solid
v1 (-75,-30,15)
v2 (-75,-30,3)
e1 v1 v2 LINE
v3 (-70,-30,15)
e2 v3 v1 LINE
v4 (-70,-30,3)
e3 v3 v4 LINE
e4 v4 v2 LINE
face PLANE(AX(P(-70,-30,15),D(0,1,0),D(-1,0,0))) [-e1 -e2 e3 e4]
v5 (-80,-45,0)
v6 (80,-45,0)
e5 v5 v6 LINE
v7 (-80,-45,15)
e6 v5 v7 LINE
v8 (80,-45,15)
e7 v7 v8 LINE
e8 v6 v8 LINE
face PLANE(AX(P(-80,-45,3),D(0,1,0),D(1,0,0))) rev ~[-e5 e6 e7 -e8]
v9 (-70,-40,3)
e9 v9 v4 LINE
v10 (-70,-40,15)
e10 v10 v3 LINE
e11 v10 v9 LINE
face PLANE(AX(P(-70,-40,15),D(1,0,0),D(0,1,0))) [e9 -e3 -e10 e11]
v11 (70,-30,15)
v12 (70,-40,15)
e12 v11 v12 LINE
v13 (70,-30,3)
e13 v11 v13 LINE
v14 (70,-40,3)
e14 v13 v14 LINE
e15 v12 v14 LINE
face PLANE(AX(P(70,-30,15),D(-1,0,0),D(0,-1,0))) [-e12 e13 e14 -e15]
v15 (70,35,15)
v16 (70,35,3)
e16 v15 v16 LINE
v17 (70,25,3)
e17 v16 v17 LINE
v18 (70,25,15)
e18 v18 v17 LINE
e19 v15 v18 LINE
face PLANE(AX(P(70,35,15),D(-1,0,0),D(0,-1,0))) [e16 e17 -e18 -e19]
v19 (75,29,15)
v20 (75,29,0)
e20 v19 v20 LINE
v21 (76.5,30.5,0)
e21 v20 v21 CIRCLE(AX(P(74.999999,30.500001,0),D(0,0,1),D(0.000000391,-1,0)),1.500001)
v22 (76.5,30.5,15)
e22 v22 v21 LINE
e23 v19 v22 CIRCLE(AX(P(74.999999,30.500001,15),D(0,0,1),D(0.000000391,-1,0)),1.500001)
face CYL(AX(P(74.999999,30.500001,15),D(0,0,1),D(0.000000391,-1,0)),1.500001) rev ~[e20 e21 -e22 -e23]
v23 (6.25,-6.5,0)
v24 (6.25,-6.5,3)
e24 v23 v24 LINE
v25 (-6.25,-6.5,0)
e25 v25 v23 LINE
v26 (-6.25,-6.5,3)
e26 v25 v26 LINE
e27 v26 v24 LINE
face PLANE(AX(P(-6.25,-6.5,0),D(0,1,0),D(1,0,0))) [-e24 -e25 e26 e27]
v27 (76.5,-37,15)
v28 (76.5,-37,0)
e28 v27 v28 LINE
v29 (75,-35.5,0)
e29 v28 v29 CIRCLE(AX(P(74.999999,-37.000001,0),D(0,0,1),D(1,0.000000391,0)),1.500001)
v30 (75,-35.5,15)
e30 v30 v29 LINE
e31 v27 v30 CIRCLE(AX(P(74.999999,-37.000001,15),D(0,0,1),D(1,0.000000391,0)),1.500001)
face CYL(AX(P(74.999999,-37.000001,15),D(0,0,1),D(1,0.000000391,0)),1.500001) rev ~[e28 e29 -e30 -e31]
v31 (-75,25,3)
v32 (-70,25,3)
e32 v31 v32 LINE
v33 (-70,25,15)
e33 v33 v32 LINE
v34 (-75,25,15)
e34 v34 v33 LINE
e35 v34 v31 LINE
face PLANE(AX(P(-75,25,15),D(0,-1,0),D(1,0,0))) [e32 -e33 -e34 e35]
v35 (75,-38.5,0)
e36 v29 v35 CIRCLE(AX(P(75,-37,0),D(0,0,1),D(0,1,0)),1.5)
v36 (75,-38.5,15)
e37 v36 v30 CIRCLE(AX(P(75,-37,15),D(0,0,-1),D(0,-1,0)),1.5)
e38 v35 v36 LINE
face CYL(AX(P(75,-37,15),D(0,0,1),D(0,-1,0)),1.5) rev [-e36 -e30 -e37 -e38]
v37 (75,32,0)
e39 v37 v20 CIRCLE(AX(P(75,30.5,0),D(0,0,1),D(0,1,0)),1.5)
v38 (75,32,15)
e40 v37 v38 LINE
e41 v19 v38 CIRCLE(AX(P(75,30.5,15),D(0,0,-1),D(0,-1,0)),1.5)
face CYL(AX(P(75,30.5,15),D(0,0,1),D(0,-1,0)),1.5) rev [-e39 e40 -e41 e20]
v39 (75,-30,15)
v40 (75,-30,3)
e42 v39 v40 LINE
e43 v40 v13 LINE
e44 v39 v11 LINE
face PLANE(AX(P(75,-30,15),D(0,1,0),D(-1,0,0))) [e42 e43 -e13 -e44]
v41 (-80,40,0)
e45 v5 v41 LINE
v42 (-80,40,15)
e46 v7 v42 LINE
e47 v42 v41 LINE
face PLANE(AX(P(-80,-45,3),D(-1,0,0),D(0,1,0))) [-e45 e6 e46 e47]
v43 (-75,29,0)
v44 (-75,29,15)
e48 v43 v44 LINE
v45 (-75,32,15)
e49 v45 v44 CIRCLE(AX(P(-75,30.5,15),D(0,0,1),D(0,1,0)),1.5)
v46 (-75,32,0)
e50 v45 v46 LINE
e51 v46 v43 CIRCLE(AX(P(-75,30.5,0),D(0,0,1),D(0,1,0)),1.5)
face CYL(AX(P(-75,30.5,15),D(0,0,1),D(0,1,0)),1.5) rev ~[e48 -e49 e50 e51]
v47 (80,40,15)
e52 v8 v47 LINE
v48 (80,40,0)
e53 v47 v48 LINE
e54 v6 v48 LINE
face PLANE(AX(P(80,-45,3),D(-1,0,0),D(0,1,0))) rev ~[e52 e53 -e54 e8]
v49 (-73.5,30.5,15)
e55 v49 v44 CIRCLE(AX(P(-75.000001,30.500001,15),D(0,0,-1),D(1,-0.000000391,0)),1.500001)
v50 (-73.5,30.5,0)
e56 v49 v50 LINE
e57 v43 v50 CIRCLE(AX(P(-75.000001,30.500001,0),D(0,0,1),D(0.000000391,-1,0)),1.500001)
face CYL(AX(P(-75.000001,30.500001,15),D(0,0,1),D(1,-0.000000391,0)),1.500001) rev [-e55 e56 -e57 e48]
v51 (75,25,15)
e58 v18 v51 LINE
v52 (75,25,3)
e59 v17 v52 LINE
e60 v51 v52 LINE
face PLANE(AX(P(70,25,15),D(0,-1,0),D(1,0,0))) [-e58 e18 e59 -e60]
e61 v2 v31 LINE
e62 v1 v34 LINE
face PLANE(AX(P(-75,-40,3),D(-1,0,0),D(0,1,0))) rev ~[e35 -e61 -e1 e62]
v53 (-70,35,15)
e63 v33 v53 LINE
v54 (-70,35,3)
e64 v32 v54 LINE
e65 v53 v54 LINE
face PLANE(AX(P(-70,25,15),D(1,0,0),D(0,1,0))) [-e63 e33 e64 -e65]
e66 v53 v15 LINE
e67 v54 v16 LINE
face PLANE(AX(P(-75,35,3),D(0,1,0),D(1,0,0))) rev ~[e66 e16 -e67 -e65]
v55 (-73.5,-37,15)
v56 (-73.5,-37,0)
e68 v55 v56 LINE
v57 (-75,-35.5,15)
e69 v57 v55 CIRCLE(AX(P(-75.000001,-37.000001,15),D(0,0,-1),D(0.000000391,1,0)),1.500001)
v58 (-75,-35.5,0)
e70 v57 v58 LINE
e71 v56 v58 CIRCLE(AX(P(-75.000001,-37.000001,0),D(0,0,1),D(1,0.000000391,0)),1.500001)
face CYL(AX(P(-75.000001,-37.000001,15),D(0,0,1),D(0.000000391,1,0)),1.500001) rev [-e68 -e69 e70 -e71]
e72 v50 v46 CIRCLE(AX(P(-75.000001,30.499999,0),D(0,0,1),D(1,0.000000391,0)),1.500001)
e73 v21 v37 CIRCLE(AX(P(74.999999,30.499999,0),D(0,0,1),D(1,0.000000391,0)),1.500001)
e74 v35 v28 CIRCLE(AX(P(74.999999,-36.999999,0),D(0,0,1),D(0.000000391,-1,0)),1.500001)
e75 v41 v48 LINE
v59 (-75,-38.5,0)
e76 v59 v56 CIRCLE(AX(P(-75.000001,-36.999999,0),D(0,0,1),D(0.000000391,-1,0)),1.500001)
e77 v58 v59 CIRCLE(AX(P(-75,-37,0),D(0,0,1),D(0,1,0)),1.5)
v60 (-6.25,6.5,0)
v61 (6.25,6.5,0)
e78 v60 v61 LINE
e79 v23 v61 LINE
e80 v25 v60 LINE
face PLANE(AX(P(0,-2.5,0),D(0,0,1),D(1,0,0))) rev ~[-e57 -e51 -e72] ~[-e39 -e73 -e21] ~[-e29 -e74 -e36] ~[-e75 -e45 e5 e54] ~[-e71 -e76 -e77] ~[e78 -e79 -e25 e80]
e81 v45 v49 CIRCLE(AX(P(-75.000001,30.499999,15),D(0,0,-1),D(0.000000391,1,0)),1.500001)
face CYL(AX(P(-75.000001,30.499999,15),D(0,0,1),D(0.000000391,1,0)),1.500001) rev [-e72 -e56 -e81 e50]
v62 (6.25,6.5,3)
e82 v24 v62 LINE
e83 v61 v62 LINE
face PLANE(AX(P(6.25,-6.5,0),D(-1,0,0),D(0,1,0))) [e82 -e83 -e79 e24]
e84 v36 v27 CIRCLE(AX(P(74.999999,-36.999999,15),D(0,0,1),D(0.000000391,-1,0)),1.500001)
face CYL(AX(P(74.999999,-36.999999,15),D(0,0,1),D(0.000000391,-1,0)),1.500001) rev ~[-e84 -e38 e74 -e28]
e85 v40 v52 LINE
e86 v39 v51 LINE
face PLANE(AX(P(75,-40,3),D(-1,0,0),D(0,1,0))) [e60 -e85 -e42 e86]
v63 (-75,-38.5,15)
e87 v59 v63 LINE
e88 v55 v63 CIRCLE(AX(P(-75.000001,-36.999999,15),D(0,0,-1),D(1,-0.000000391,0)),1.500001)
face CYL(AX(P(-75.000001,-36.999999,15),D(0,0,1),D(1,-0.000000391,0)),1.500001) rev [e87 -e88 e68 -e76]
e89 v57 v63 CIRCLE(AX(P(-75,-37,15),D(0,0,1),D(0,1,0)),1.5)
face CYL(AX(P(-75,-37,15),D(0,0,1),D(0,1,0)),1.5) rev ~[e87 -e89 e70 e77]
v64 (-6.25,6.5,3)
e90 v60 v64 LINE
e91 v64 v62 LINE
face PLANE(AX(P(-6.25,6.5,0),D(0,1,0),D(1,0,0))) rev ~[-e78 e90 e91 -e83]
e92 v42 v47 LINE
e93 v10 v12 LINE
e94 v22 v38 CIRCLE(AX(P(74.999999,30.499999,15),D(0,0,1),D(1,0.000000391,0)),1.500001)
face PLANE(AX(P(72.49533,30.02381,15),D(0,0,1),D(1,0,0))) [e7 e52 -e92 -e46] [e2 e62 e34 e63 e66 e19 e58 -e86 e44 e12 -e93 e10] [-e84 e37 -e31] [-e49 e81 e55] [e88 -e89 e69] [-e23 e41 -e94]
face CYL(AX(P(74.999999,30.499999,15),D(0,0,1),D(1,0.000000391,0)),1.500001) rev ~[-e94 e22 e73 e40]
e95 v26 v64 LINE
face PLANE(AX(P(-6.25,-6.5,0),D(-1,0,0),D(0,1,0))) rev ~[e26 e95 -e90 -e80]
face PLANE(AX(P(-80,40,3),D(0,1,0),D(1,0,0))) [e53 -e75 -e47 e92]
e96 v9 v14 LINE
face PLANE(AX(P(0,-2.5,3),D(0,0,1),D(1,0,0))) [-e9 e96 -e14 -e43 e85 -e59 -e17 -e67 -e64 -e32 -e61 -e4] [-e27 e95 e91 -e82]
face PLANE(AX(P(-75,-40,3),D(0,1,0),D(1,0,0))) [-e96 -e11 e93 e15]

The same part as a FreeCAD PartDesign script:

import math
import FreeCAD as App
import Part
import Sketcher
from FreeCAD import Vector


def add_polygon(sketch, points):
    """Adds a closed chain of lines whose ends are joined by coincident constraints."""
    first, n = sketch.GeometryCount, len(points)
    for a, b in zip(points, points[1:] + points[:1]):
        sketch.addGeometry(Part.LineSegment(App.Vector(*a, 0), App.Vector(*b, 0)), False)
    for i in range(n):
        sketch.addConstraint(Sketcher.Constraint("Coincident", first + i, 2, first + (i + 1) % n, 1))

doc = App.newDocument("Part")
body = doc.addObject("PartDesign::Body", "Body")

# Sketch on XY plane
sketch1 = body.newObject("Sketcher::SketchObject", "Sketch")
sketch1.AttachmentSupport = (doc.getObject("XY_Plane"), [""])
sketch1.MapMode = "FlatFace"
add_polygon(sketch1, [(-80, 40), (-80, -45), (80, -45), (80, 40)])  # lines 0-3
add_polygon(sketch1, [(6, -6), (-6, -6), (-6, 6), (6, 6)])  # lines 4-7
sketch1.addConstraint([
    Sketcher.Constraint("Vertical", 0),
    Sketcher.Constraint("Horizontal", 1),
    Sketcher.Constraint("Vertical", 2),
    Sketcher.Constraint("Horizontal", 3),
    Sketcher.Constraint("Horizontal", 4),
    Sketcher.Constraint("Vertical", 5),
    Sketcher.Constraint("Horizontal", 6),
    Sketcher.Constraint("Vertical", 7),
    Sketcher.Constraint("Symmetric", 4, 2, 6, 2, -1, 1),
    Sketcher.Constraint("DistanceX", 1, 1, 1, 2, 160.0),
    Sketcher.Constraint("DistanceY", 0, 2, 0, 1, 85.0),
    Sketcher.Constraint("DistanceY", 5, 1, 5, 2, 13.0),
    Sketcher.Constraint("DistanceX", 4, 2, 4, 1, 12.5),
    Sketcher.Constraint("DistanceX", 0, 2, -1, 1, 80.0),
    Sketcher.Constraint("DistanceY", 0, 2, -1, 1, 45.0),
])
pad1 = body.newObject("PartDesign::Pad", "Pad")
pad1.Profile = sketch1
pad1.Length = 3

# Sketch on XY plane
sketch2 = body.newObject("Sketcher::SketchObject", "Sketch001")
sketch2.AttachmentSupport = (doc.getObject("XY_Plane"), [""])
sketch2.MapMode = "FlatFace"
sketch2.AttachmentOffset = App.Placement(Vector(0, 0, 3), App.Rotation())
add_polygon(sketch2, [(-80, 40), (-80, -45), (80, -45), (80, 40)])  # lines 0-3
add_polygon(sketch2, [(75, -40), (-75, -40), (-75, 35), (75, 35)])  # lines 4-7
sketch2.addConstraint([
    Sketcher.Constraint("Vertical", 0),
    Sketcher.Constraint("Horizontal", 1),
    Sketcher.Constraint("Vertical", 2),
    Sketcher.Constraint("Horizontal", 3),
    Sketcher.Constraint("Horizontal", 4),
    Sketcher.Constraint("Vertical", 5),
    Sketcher.Constraint("Horizontal", 6),
    Sketcher.Constraint("Vertical", 7),
    Sketcher.Constraint("DistanceX", 1, 1, 1, 2, 160.0),
    Sketcher.Constraint("DistanceX", 4, 2, 4, 1, 150.0),
    Sketcher.Constraint("DistanceY", 0, 2, 0, 1, 85.0),
    Sketcher.Constraint("DistanceY", 5, 1, 5, 2, 75.0),
    Sketcher.Constraint("DistanceX", 0, 2, -1, 1, 80.0),
    Sketcher.Constraint("DistanceY", 0, 2, -1, 1, 45.0),
    Sketcher.Constraint("DistanceX", 4, 2, -1, 1, 75.0),
    Sketcher.Constraint("DistanceY", 4, 2, -1, 1, 40.0),
])
pad2 = body.newObject("PartDesign::Pad", "Pad001")
pad2.Profile = sketch2
pad2.Length = 12

# Sketch on XY plane
sketch3 = body.newObject("Sketcher::SketchObject", "Sketch002")
sketch3.AttachmentSupport = (doc.getObject("XY_Plane"), [""])
sketch3.MapMode = "FlatFace"
sketch3.AttachmentOffset = App.Placement(Vector(0, 0, 15), App.Rotation())
sketch3.addGeometry([
    Part.ArcOfCircle(Part.Circle(Vector(75, 30.5, 0), Vector(0, 0, 1), 1.5), math.radians(90), math.radians(270)),  # 0
    Part.LineSegment(Vector(75, 32, 0), Vector(75, 35, 0)),  # 1
    Part.LineSegment(Vector(75, 35, 0), Vector(70, 35, 0)),  # 2
    Part.LineSegment(Vector(70, 35, 0), Vector(70, 25, 0)),  # 3
    Part.LineSegment(Vector(70, 25, 0), Vector(75, 25, 0)),  # 4
    Part.LineSegment(Vector(75, 25, 0), Vector(75, 29, 0)),  # 5
    Part.ArcOfCircle(Part.Circle(Vector(-75, 30.5, 0), Vector(0, 0, 1), 1.5), math.radians(0), math.radians(90)),  # 6
    Part.ArcOfCircle(Part.Circle(Vector(-75, 30.5, 0), Vector(0, 0, 1), 1.5), math.radians(-90), math.radians(0)),  # 7
    Part.LineSegment(Vector(-75, 29, 0), Vector(-75, 25, 0)),  # 8
    Part.LineSegment(Vector(-75, 25, 0), Vector(-70, 25, 0)),  # 9
    Part.LineSegment(Vector(-70, 25, 0), Vector(-70, 35, 0)),  # 10
    Part.LineSegment(Vector(-70, 35, 0), Vector(-75, 35, 0)),  # 11
    Part.LineSegment(Vector(-75, 35, 0), Vector(-75, 32, 0)),  # 12
    Part.ArcOfCircle(Part.Circle(Vector(-75, -37, 0), Vector(0, 0, 1), 1.5), math.radians(0), math.radians(90)),  # 13
    Part.ArcOfCircle(Part.Circle(Vector(-75, -37, 0), Vector(0, 0, 1), 1.5), math.radians(-90), math.radians(0)),  # 14
    Part.LineSegment(Vector(-75, -38.5, 0), Vector(-75, -40, 0)),  # 15
    Part.LineSegment(Vector(-75, -40, 0), Vector(-70, -40, 0)),  # 16
    Part.LineSegment(Vector(-70, -40, 0), Vector(-70, -30, 0)),  # 17
    Part.LineSegment(Vector(-70, -30, 0), Vector(-75, -30, 0)),  # 18
    Part.LineSegment(Vector(-75, -30, 0), Vector(-75, -35.5, 0)),  # 19
    Part.ArcOfCircle(Part.Circle(Vector(75, -37, 0), Vector(0, 0, 1), 1.5), math.radians(90), math.radians(270)),  # 20
    Part.LineSegment(Vector(75, -35.5, 0), Vector(75, -30, 0)),  # 21
    Part.LineSegment(Vector(75, -30, 0), Vector(70, -30, 0)),  # 22
    Part.LineSegment(Vector(70, -30, 0), Vector(70, -40, 0)),  # 23
    Part.LineSegment(Vector(70, -40, 0), Vector(75, -40, 0)),  # 24
    Part.LineSegment(Vector(75, -40, 0), Vector(75, -38.5, 0)),  # 25
], False)
sketch3.addConstraint([
    Sketcher.Constraint("Coincident", 0, 1, 1, 1),
    Sketcher.Constraint("Coincident", 1, 2, 2, 1),
    Sketcher.Constraint("Coincident", 2, 2, 3, 1),
    Sketcher.Constraint("Coincident", 3, 2, 4, 1),
    Sketcher.Constraint("Coincident", 4, 2, 5, 1),
    Sketcher.Constraint("Coincident", 5, 2, 0, 2),
    Sketcher.Constraint("Tangent", 6, 1, 7, 2),
    Sketcher.Constraint("Coincident", 7, 1, 8, 1),
    Sketcher.Constraint("Coincident", 8, 2, 9, 1),
    Sketcher.Constraint("Coincident", 9, 2, 10, 1),
    Sketcher.Constraint("Coincident", 10, 2, 11, 1),
    Sketcher.Constraint("Coincident", 11, 2, 12, 1),
    Sketcher.Constraint("Coincident", 12, 2, 6, 2),
    Sketcher.Constraint("Tangent", 13, 1, 14, 2),
    Sketcher.Constraint("Coincident", 14, 1, 15, 1),
    Sketcher.Constraint("Coincident", 15, 2, 16, 1),
    Sketcher.Constraint("Coincident", 16, 2, 17, 1),
    Sketcher.Constraint("Coincident", 17, 2, 18, 1),
    Sketcher.Constraint("Coincident", 18, 2, 19, 1),
    Sketcher.Constraint("Coincident", 19, 2, 13, 2),
    Sketcher.Constraint("Coincident", 20, 1, 21, 1),
    Sketcher.Constraint("Coincident", 21, 2, 22, 1),
    Sketcher.Constraint("Coincident", 22, 2, 23, 1),
    Sketcher.Constraint("Coincident", 23, 2, 24, 1),
    Sketcher.Constraint("Coincident", 24, 2, 25, 1),
    Sketcher.Constraint("Coincident", 25, 2, 20, 2),
    Sketcher.Constraint("Vertical", 1),
    Sketcher.Constraint("Horizontal", 2),
    Sketcher.Constraint("Vertical", 3),
    Sketcher.Constraint("Horizontal", 4),
    Sketcher.Constraint("Vertical", 5),
    Sketcher.Constraint("Vertical", 8),
    Sketcher.Constraint("Horizontal", 9),
    Sketcher.Constraint("Vertical", 10),
    Sketcher.Constraint("Horizontal", 11),
    Sketcher.Constraint("Vertical", 12),
    Sketcher.Constraint("Vertical", 15),
    Sketcher.Constraint("Horizontal", 16),
    Sketcher.Constraint("Vertical", 17),
    Sketcher.Constraint("Horizontal", 18),
    Sketcher.Constraint("Vertical", 19),
    Sketcher.Constraint("Vertical", 21),
    Sketcher.Constraint("Horizontal", 22),
    Sketcher.Constraint("Vertical", 23),
    Sketcher.Constraint("Horizontal", 24),
    Sketcher.Constraint("Vertical", 25),
    Sketcher.Constraint("Equal", 0, 6),
    Sketcher.Constraint("Equal", 6, 7),
    Sketcher.Constraint("Equal", 7, 13),
    Sketcher.Constraint("Equal", 13, 14),
    Sketcher.Constraint("Equal", 14, 20),
    Sketcher.Constraint("Symmetric", 0, 3, 6, 3, -2),
    Sketcher.Constraint("Symmetric", 13, 3, 20, 3, -2),
    Sketcher.Constraint("Symmetric", 4, 2, 8, 2, -2),
    Sketcher.Constraint("Symmetric", 2, 2, 10, 2, -2),
    Sketcher.Constraint("Symmetric", 18, 2, 21, 2, -2),
    Sketcher.Constraint("Symmetric", 16, 2, 23, 2, -2),
    Sketcher.Constraint("Horizontal", 7, 3, 6, 1),
    Sketcher.Constraint("Horizontal", 20, 3, 13, 1),
    Sketcher.Constraint("Vertical", 7, 3, 13, 3),
    Sketcher.Constraint("Vertical", 20, 3, 0, 1),
    Sketcher.Constraint("Vertical", 1, 2, 4, 2),
    Sketcher.Constraint("Vertical", 8, 2, 11, 2),
    Sketcher.Constraint("Vertical", 12, 2, 14, 1),
    Sketcher.Constraint("Vertical", 10, 2, 16, 2),
    Sketcher.Constraint("Vertical", 15, 2, 18, 2),
    Sketcher.Constraint("Vertical", 21, 2, 24, 2),
    Sketcher.Constraint("Equal", 10, 17),
    Sketcher.Constraint("Radius", 0, 1.5),
    Sketcher.Constraint("DistanceX", 2, 2, 2, 1, 5.0),
    Sketcher.Constraint("DistanceY", 1, 1, 1, 2, 3.0),
    Sketcher.Constraint("DistanceY", 3, 2, 3, 1, 10.0),
    Sketcher.Constraint("DistanceY", 15, 2, 15, 1, 1.5),
    Sketcher.Constraint("DistanceX", -1, 1, 0, 3, 75.0),
    Sketcher.Constraint("DistanceY", 13, 3, -1, 1, 37.000001),
    Sketcher.Constraint("DistanceY", -1, 1, 0, 1, 32.0),
])
pad3 = body.newObject("PartDesign::Pad", "Pad002")
pad3.Profile = sketch3
pad3.Length = 12
pad3.Reversed = True

# Sketch on XY plane
sketch4 = body.newObject("Sketcher::SketchObject", "Sketch003")
sketch4.AttachmentSupport = (doc.getObject("XY_Plane"), [""])
sketch4.MapMode = "FlatFace"
sketch4.AttachmentOffset = App.Placement(Vector(0, 0, 15), App.Rotation())
sketch4.addGeometry([
    Part.ArcOfCircle(Part.Circle(Vector(-75, -37, 0), Vector(0, 0, 1), 1.5), math.radians(-90), math.radians(0)),  # 0
    Part.ArcOfCircle(Part.Circle(Vector(-75, -37, 0), Vector(0, 0, 1), 1.5), math.radians(0), math.radians(90)),  # 1
    Part.ArcOfCircle(Part.Circle(Vector(-75, -37, 0), Vector(0, 0, 1), 1.5), math.radians(90), math.radians(270)),  # 2
    Part.ArcOfCircle(Part.Circle(Vector(75, -37, 0), Vector(0, 0, 1), 1.5), math.radians(-90), math.radians(0)),  # 3
    Part.ArcOfCircle(Part.Circle(Vector(75, -37, 0), Vector(0, 0, 1), 1.5), math.radians(0), math.radians(90)),  # 4
    Part.ArcOfCircle(Part.Circle(Vector(75, -37, 0), Vector(0, 0, 1), 1.5), math.radians(90), math.radians(270)),  # 5
    Part.ArcOfCircle(Part.Circle(Vector(75, 30.5, 0), Vector(0, 0, 1), 1.5), math.radians(90), math.radians(270)),  # 6
    Part.ArcOfCircle(Part.Circle(Vector(75, 30.5, 0), Vector(0, 0, 1), 1.5), math.radians(-90), math.radians(0)),  # 7
    Part.ArcOfCircle(Part.Circle(Vector(75, 30.5, 0), Vector(0, 0, 1), 1.5), math.radians(0), math.radians(90)),  # 8
    Part.ArcOfCircle(Part.Circle(Vector(-75, 30.5, 0), Vector(0, 0, 1), 1.5), math.radians(-90), math.radians(0)),  # 9
    Part.ArcOfCircle(Part.Circle(Vector(-75, 30.5, 0), Vector(0, 0, 1), 1.5), math.radians(0), math.radians(90)),  # 10
    Part.ArcOfCircle(Part.Circle(Vector(-75, 30.5, 0), Vector(0, 0, 1), 1.5), math.radians(90), math.radians(270)),  # 11
], False)
sketch4.addConstraint([
    Sketcher.Constraint("Tangent", 0, 2, 1, 1),
    Sketcher.Constraint("Tangent", 1, 2, 2, 1),
    Sketcher.Constraint("Tangent", 2, 2, 0, 1),
    Sketcher.Constraint("Tangent", 3, 2, 4, 1),
    Sketcher.Constraint("Tangent", 4, 2, 5, 1),
    Sketcher.Constraint("Tangent", 5, 2, 3, 1),
    Sketcher.Constraint("Tangent", 6, 2, 7, 1),
    Sketcher.Constraint("Tangent", 7, 2, 8, 1),
    Sketcher.Constraint("Tangent", 8, 2, 6, 1),
    Sketcher.Constraint("Tangent", 9, 2, 10, 1),
    Sketcher.Constraint("Tangent", 10, 2, 11, 1),
    Sketcher.Constraint("Tangent", 11, 2, 9, 1),
    Sketcher.Constraint("Equal", 2, 3),
    Sketcher.Constraint("Equal", 5, 6),
    Sketcher.Constraint("Equal", 8, 9),
    Sketcher.Constraint("Symmetric", 0, 3, 3, 3, -2),
    Sketcher.Constraint("Symmetric", 6, 3, 9, 3, -2),
    Sketcher.Constraint("Horizontal", 5, 3, 0, 2),
    Sketcher.Constraint("Horizontal", 0, 2, 3, 2),
    Sketcher.Constraint("Horizontal", 11, 3, 7, 2),
    Sketcher.Constraint("Horizontal", 7, 2, 9, 2),
    Sketcher.Constraint("Vertical", 5, 3, 6, 3),
    Sketcher.Constraint("Vertical", 11, 3, 1, 2),
    Sketcher.Constraint("Vertical", 1, 2, 2, 2),
    Sketcher.Constraint("Vertical", 8, 3, 4, 2),
    Sketcher.Constraint("Vertical", 4, 2, 5, 2),
    Sketcher.Constraint("Vertical", 5, 2, 6, 2),
    Sketcher.Constraint("Vertical", 6, 2, 8, 2),
    Sketcher.Constraint("Vertical", 2, 2, 10, 2),
    Sketcher.Constraint("Vertical", 10, 2, 11, 2),
    Sketcher.Constraint("Radius", 0, 1.500001),
    Sketcher.Constraint("DistanceX", 0, 3, -1, 1, 75.000001),
    Sketcher.Constraint("DistanceY", 0, 3, -1, 1, 36.999999),
    Sketcher.Constraint("DistanceY", -1, 1, 6, 2, 29.0),
])
pocket1 = body.newObject("PartDesign::Pocket", "Pocket")
pocket1.Profile = sketch4
pocket1.Type = "ThroughAll"

doc.recompute()
